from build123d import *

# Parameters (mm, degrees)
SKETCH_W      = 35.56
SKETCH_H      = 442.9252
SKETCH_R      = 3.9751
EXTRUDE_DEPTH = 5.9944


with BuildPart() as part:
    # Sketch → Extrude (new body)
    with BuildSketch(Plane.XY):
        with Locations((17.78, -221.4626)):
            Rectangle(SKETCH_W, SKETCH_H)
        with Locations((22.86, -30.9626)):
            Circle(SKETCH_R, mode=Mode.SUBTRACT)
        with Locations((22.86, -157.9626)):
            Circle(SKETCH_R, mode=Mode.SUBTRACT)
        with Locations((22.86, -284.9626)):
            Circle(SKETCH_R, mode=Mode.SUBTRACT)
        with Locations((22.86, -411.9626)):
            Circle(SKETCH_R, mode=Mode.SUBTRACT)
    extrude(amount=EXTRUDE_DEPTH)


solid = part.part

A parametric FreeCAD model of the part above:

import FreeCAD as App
import Part
import Sketcher

V = App.Vector
Q = App.Units.Quantity


def add_polygon(sketch, points):
    """Adds a closed chain of lines whose ends are joined by coincident constraints."""
    first, n = sketch.GeometryCount, len(points)
    for a, b in zip(points, points[1:] + points[:1]):
        sketch.addGeometry(Part.LineSegment(App.Vector(*a, 0), App.Vector(*b, 0)), False)
    for i in range(n):
        sketch.addConstraint(Sketcher.Constraint("Coincident", first + i, 2, first + (i + 1) % n, 1))

doc = App.newDocument("Part")
params = doc.addObject("Spreadsheet::Sheet", "Params")
for row, (alias, value) in enumerate([
    ("sketch1_diameter", "0.313 in"),
    ("sketch1_width", "1.4 in"),
    ("sketch1_height", "17.438 in"),
    ("pad1_length", "0.236 in"),
], start=1):
    params.set(f"A{row}", alias)
    params.set(f"B{row}", "=" + value)
    params.setAlias(f"B{row}", alias)

body = doc.addObject("PartDesign::Body", "Body")

sketch1 = body.newObject("Sketcher::SketchObject", "Sketch")
sketch1.AttachmentSupport = (doc.getObject("XY_Plane"), [""])
sketch1.MapMode = "FlatFace"
add_polygon(sketch1, [(0, 0), (0, -442.9), (35.6, -442.9), (35.6, 0)])
sketch1.addGeometry(Part.Circle(V(22.9, -412, 0), V(0, 0, 1), 4), False)
sketch1.addGeometry(Part.Circle(V(22.9, -285, 0), V(0, 0, 1), 4), False)
sketch1.addGeometry(Part.Circle(V(22.9, -158, 0), V(0, 0, 1), 4), False)
sketch1.addGeometry(Part.Circle(V(22.9, -31, 0), V(0, 0, 1), 4), False)
sketch1.addConstraint([
    Sketcher.Constraint("Vertical", 0),
    Sketcher.Constraint("Horizontal", 1),
    Sketcher.Constraint("Vertical", 2),
    Sketcher.Constraint("Horizontal", 3),
    Sketcher.Constraint("Coincident", 3, 2, -1, 1),
    Sketcher.Constraint("Equal", 4, 5),
    Sketcher.Constraint("Equal", 5, 6),
    Sketcher.Constraint("Equal", 6, 7),
    Sketcher.Constraint("Vertical", 4, 3, 5, 3),
    Sketcher.Constraint("Vertical", 5, 3, 6, 3),
    Sketcher.Constraint("Vertical", 6, 3, 7, 3),
    Sketcher.Constraint("Diameter", 4, Q("0.313 in")),
    Sketcher.Constraint("DistanceX", 1, 1, 1, 2, Q("1.4 in")),
    Sketcher.Constraint("DistanceY", 4, 3, 5, 3, Q("5 in")),
    Sketcher.Constraint("DistanceY", 5, 3, 6, 3, Q("5 in")),
    Sketcher.Constraint("DistanceY", 6, 3, 7, 3, Q("5 in")),
    Sketcher.Constraint("DistanceX", -1, 1, 4, 3, Q("0.9 in")),
    Sketcher.Constraint("DistanceY", 0, 2, 0, 1, Q("17.438 in")),
    Sketcher.Constraint("DistanceY", 4, 3, -1, 1, Q("16.219 in")),
])
sketch1.setExpression("Constraints[15]", "Params.sketch1_diameter")
sketch1.setExpression("Constraints[16]", "Params.sketch1_width")
sketch1.setExpression("Constraints[21]", "Params.sketch1_height")
pad1 = body.newObject("PartDesign::Pad", "Pad")
pad1.Profile = sketch1
pad1.setExpression("Length", "Params.pad1_length")

doc.recompute()
